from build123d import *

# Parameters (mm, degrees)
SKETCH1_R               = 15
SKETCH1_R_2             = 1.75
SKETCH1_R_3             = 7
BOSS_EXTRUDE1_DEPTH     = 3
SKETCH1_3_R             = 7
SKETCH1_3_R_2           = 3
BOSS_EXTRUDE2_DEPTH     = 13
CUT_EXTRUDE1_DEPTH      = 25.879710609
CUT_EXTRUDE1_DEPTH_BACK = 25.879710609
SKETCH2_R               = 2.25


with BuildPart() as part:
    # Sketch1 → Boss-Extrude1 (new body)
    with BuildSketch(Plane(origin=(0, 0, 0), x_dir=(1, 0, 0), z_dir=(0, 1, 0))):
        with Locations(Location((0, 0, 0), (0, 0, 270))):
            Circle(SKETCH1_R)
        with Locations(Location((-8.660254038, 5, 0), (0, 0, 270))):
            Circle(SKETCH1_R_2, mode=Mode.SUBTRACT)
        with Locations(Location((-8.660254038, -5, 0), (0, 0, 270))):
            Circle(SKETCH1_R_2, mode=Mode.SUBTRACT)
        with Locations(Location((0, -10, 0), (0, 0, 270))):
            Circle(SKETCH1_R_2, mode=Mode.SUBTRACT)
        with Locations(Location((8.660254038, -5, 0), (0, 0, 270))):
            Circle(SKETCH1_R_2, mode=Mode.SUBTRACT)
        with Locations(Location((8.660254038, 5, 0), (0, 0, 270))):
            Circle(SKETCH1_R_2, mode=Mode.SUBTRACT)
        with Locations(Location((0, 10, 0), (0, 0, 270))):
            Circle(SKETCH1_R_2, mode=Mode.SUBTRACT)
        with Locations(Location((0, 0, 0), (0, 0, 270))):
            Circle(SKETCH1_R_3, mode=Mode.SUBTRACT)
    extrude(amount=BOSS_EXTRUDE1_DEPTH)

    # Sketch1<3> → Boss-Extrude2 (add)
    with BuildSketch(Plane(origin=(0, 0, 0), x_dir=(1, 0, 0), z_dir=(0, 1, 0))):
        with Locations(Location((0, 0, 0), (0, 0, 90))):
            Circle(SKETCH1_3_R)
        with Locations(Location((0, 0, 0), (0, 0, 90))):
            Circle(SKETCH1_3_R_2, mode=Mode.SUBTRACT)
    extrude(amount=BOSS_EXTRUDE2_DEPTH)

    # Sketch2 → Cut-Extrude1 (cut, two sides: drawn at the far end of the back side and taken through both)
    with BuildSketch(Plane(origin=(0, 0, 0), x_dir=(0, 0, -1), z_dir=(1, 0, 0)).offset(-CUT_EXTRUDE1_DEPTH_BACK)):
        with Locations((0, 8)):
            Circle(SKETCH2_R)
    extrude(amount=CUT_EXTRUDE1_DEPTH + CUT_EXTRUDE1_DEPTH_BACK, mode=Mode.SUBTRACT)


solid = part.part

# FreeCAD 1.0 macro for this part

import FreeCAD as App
import Part
import Sketcher
from FreeCAD import Vector

doc = App.newDocument("Part")
body = doc.addObject("PartDesign::Body", "Body")

# Sketch on XZ plane
sketch1 = body.newObject("Sketcher::SketchObject", "Sketch")
sketch1.AttachmentSupport = (doc.getObject("XZ_Plane"), [""])
sketch1.MapMode = "FlatFace"
sketch1.addGeometry([
    Part.Circle(Vector(0, 0, 0), Vector(0, 0, 1), 15),  # 0
    Part.Circle(Vector(-8.7, -5, 0), Vector(0, 0, 1), 1.8),  # 1
    Part.Circle(Vector(0, -10, 0), Vector(0, 0, 1), 1.8),  # 2
    Part.Circle(Vector(-8.7, 5, 0), Vector(0, 0, 1), 1.8),  # 3
    Part.Circle(Vector(8.7, -5, 0), Vector(0, 0, 1), 1.8),  # 4
    Part.Circle(Vector(0, 0, 0), Vector(0, 0, 1), 7),  # 5
    Part.Circle(Vector(0, 10, 0), Vector(0, 0, 1), 1.8),  # 6
    Part.Circle(Vector(8.7, 5, 0), Vector(0, 0, 1), 1.8),  # 7
], False)
sketch1.addConstraint([
    Sketcher.Constraint("Coincident", 0, 3, -1, 1),
    Sketcher.Constraint("Coincident", 5, 3, -1, 1),
    Sketcher.Constraint("Equal", 1, 2),
    Sketcher.Constraint("Equal", 2, 3),
    Sketcher.Constraint("Equal", 3, 4),
    Sketcher.Constraint("Equal", 4, 6),
    Sketcher.Constraint("Equal", 6, 7),
    Sketcher.Constraint("Symmetric", 3, 3, 4, 3, -1, 1),
    Sketcher.Constraint("Symmetric", 2, 3, 6, 3, -1, 1),
    Sketcher.Constraint("Symmetric", 1, 3, 7, 3, -1, 1),
    Sketcher.Constraint("Symmetric", 1, 3, 4, 3, -2),
    Sketcher.Constraint("PointOnObject", 2, 3, -2),
    Sketcher.Constraint("Diameter", 0, 30.0),
    Sketcher.Constraint("Diameter", 5, 14.0),
    Sketcher.Constraint("Diameter", 1, 3.5),
    Sketcher.Constraint("DistanceY", 1, 3, -1, 1, 5.0),
    Sketcher.Constraint("DistanceY", 2, 3, -1, 1, 10.0),
    Sketcher.Constraint("DistanceX", 1, 3, 4, 3, 17.320508),
])
pad1 = body.newObject("PartDesign::Pad", "Pad")
pad1.Profile = sketch1
pad1.Length = 3
pad1.Reversed = True

# Sketch on XZ plane
sketch2 = body.newObject("Sketcher::SketchObject", "Sketch001")
sketch2.AttachmentSupport = (doc.getObject("XZ_Plane"), [""])
sketch2.MapMode = "FlatFace"
sketch2.addGeometry([
    Part.Circle(Vector(0, 0, 0), Vector(0, 0, 1), 7),
    Part.Circle(Vector(0, 0, 0), Vector(0, 0, 1), 3),
], False)
sketch2.addConstraint([
    Sketcher.Constraint("Coincident", 0, 3, -1, 1),
    Sketcher.Constraint("Coincident", 1, 3, -1, 1),
    Sketcher.Constraint("Diameter", 0, 14.0),
    Sketcher.Constraint("Diameter", 1, 6.0),
])
pad2 = body.newObject("PartDesign::Pad", "Pad001")
pad2.Profile = sketch2
pad2.Length = 13
pad2.Reversed = True

# Sketch on YZ plane
sketch3 = body.newObject("Sketcher::SketchObject", "Sketch002")
sketch3.AttachmentSupport = (doc.getObject("YZ_Plane"), [""])
sketch3.MapMode = "FlatFace"
sketch3.addGeometry(Part.Circle(Vector(8, 0, 0), Vector(0, 0, 1), 2.2), False)
sketch3.addConstraint([
    Sketcher.Constraint("PointOnObject", 0, 3, -1),
    Sketcher.Constraint("Diameter", 0, 4.5),
    Sketcher.Constraint("DistanceX", -1, 1, 0, 3, 8.0),
])
pocket1 = body.newObject("PartDesign::Pocket", "Pocket")
pocket1.Profile = sketch3
pocket1.Type = "ThroughAll"
pocket1.Midplane = True

doc.recompute()
